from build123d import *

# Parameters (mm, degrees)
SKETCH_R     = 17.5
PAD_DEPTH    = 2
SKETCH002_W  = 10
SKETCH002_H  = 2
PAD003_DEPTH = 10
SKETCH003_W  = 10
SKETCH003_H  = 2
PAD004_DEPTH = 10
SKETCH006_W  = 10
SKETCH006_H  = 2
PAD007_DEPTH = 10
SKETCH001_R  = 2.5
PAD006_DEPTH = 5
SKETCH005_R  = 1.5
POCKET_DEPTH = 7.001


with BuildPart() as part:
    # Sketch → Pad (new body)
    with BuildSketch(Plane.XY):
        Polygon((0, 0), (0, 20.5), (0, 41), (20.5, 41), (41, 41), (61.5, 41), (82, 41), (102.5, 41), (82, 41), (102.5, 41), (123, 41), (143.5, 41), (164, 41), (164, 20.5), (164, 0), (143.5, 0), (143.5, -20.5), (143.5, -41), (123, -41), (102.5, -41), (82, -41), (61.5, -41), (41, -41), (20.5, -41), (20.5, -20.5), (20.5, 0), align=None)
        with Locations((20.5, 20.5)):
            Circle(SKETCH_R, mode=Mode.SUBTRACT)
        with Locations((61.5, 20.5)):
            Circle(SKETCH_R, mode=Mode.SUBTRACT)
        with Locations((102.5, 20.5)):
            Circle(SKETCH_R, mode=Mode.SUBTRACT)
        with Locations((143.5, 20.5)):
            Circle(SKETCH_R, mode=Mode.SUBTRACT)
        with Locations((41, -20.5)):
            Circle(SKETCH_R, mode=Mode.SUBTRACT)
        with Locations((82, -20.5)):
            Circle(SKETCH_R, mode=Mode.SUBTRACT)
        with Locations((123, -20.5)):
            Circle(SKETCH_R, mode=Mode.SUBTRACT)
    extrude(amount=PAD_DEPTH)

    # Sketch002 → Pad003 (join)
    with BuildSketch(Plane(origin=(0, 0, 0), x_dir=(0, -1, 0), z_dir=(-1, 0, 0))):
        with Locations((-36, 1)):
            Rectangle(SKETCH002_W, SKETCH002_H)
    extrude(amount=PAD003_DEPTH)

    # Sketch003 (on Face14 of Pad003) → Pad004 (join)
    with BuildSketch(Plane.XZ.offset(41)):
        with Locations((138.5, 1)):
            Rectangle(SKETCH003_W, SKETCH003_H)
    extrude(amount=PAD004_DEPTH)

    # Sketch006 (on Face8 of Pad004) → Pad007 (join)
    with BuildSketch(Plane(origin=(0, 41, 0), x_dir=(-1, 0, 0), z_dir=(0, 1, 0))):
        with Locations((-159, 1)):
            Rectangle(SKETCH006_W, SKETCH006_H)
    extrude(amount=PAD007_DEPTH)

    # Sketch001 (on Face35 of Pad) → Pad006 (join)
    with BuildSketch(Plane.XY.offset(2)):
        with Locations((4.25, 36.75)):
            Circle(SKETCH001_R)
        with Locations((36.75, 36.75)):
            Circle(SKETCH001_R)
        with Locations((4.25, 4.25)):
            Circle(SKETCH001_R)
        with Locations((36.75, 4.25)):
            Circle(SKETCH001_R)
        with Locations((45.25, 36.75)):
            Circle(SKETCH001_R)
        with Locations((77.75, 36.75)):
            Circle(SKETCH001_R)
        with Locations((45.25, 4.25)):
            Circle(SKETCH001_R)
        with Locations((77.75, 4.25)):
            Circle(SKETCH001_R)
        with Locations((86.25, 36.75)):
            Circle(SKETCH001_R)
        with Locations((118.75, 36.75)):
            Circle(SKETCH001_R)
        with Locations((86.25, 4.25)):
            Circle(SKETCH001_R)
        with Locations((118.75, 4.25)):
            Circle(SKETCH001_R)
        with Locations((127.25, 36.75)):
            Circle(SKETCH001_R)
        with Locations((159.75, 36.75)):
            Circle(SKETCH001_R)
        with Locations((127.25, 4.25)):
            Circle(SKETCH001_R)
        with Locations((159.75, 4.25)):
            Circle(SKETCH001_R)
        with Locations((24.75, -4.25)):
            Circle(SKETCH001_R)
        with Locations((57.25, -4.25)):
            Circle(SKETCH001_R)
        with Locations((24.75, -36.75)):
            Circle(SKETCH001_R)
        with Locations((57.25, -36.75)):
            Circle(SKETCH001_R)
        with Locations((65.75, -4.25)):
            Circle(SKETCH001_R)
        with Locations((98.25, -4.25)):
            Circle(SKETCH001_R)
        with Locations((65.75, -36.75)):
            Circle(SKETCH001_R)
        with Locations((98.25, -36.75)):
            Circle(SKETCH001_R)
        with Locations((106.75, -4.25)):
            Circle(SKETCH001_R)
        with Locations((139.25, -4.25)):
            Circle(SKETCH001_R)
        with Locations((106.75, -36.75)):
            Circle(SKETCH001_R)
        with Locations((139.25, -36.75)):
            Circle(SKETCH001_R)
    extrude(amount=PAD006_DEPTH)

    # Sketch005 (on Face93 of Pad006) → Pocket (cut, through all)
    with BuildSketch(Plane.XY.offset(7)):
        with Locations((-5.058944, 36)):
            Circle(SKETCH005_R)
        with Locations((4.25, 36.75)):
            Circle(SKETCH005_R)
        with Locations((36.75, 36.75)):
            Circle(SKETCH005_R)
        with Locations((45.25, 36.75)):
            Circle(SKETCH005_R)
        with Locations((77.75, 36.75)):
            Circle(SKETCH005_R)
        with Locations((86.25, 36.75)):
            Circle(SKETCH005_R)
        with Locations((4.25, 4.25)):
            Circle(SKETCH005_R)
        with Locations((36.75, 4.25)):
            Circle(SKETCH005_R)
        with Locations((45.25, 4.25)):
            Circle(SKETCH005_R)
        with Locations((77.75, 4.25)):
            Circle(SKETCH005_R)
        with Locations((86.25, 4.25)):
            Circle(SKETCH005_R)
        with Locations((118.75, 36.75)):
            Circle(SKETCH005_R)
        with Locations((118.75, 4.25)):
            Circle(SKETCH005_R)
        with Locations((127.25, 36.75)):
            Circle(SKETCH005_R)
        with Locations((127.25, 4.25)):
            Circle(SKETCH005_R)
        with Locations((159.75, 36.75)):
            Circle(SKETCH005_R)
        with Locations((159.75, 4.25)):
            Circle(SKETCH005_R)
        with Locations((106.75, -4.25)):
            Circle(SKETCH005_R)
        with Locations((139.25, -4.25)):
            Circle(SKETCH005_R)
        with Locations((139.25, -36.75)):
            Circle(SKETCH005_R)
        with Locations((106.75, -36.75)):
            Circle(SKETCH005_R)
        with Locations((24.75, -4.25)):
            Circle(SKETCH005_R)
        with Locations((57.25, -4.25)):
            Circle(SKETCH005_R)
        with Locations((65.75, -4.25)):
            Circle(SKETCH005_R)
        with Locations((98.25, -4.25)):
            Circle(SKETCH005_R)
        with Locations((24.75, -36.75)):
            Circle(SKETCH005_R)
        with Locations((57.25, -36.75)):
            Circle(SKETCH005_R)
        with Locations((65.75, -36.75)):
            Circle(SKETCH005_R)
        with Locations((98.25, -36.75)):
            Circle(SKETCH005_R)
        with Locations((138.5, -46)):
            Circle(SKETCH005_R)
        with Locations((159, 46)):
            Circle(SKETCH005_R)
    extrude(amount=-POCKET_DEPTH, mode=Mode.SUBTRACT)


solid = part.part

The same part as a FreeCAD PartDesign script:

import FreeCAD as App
import Part
import Sketcher
from FreeCAD import Vector
Q = App.Units.Quantity


def add_polygon(sketch, points):
    """Adds a closed chain of lines whose ends are joined by coincident constraints."""
    first, n = sketch.GeometryCount, len(points)
    for a, b in zip(points, points[1:] + points[:1]):
        sketch.addGeometry(Part.LineSegment(App.Vector(*a, 0), App.Vector(*b, 0)), False)
    for i in range(n):
        sketch.addConstraint(Sketcher.Constraint("Coincident", first + i, 2, first + (i + 1) % n, 1))

doc = App.newDocument("Part")
body = doc.addObject("PartDesign::Body", "Body")

# Sketch on XY plane
sketch1 = doc.addObject("Sketcher::SketchObject", "Sketch")
body.addObject(sketch1)
sketch1.AttachmentSupport = (doc.XY_Plane, [""])
sketch1.MapMode = "FlatFace"
add_polygon(sketch1, [(0, 41), (0, 0), (20.5, 0), (20.5, -41), (143.5, -41), (143.5, 0), (164, 0), (164, 41)])  # lines 0-7
sketch1.addGeometry(Part.Circle(Vector(123, -20.5, 0), Vector(0, 0, 1), 17.5), False)  # 8
sketch1.addGeometry(Part.Circle(Vector(82, -20.5, 0), Vector(0, 0, 1), 17.5), False)  # 9
sketch1.addGeometry(Part.Circle(Vector(41, -20.5, 0), Vector(0, 0, 1), 17.5), False)  # 10
sketch1.addGeometry(Part.Circle(Vector(143.5, 20.5, 0), Vector(0, 0, 1), 17.5), False)  # 11
sketch1.addGeometry(Part.Circle(Vector(102.5, 20.5, 0), Vector(0, 0, 1), 17.5), False)  # 12
sketch1.addGeometry(Part.Circle(Vector(61.5, 20.5, 0), Vector(0, 0, 1), 17.5), False)  # 13
sketch1.addGeometry(Part.Circle(Vector(20.5, 20.5, 0), Vector(0, 0, 1), 17.5), False)  # 14
sketch1.addConstraint(Sketcher.Constraint("Vertical", 0))
sketch1.addConstraint(Sketcher.Constraint("Horizontal", 1))
sketch1.addConstraint(Sketcher.Constraint("Vertical", 2))
sketch1.addConstraint(Sketcher.Constraint("Horizontal", 3))
sketch1.addConstraint(Sketcher.Constraint("Vertical", 4))
sketch1.addConstraint(Sketcher.Constraint("Horizontal", 5))
sketch1.addConstraint(Sketcher.Constraint("Vertical", 6))
sketch1.addConstraint(Sketcher.Constraint("Horizontal", 7))
sketch1.addConstraint(Sketcher.Constraint("Coincident", 0, 2, -1, 1))
sketch1.addConstraint(Sketcher.Constraint("Equal", 8, 9))
sketch1.addConstraint(Sketcher.Constraint("Equal", 9, 10))
sketch1.addConstraint(Sketcher.Constraint("Equal", 10, 11))
sketch1.addConstraint(Sketcher.Constraint("Equal", 11, 12))
sketch1.addConstraint(Sketcher.Constraint("Equal", 12, 13))
sketch1.addConstraint(Sketcher.Constraint("Equal", 13, 14))
sketch1.addConstraint(Sketcher.Constraint("PointOnObject", 4, 2, -1))
sketch1.addConstraint(Sketcher.Constraint("Horizontal", 8, 3, 9, 3))
sketch1.addConstraint(Sketcher.Constraint("Horizontal", 9, 3, 10, 3))
sketch1.addConstraint(Sketcher.Constraint("Horizontal", 11, 3, 12, 3))
sketch1.addConstraint(Sketcher.Constraint("Horizontal", 12, 3, 13, 3))
sketch1.addConstraint(Sketcher.Constraint("Horizontal", 13, 3, 14, 3))
sketch1.addConstraint(Sketcher.Constraint("Vertical", 14, 3, 1, 2))
sketch1.addConstraint(Sketcher.Constraint("Vertical", 11, 3, 3, 2))
sketch1.addConstraint(Sketcher.Constraint("Equal", 1, 5))
sketch1.addConstraint(Sketcher.Constraint("Equal", 0, 2))
sketch1.addConstraint(Sketcher.Constraint("Diameter", 8, Q("35 mm")))
sketch1.addConstraint(Sketcher.Constraint("DistanceX", 3, 1, 3, 2, Q("123 mm")))
sketch1.addConstraint(Sketcher.Constraint("DistanceX", 7, 2, 7, 1, Q("164 mm")))
sketch1.addConstraint(Sketcher.Constraint("DistanceY", 0, 2, 0, 1, Q("41 mm")))
sketch1.addConstraint(Sketcher.Constraint("DistanceX", -1, 1, 8, 3, Q("123 mm")))
sketch1.addConstraint(Sketcher.Constraint("DistanceX", -1, 1, 9, 3, Q("82 mm")))
sketch1.addConstraint(Sketcher.Constraint("DistanceX", -1, 1, 10, 3, Q("41 mm")))
sketch1.addConstraint(Sketcher.Constraint("DistanceY", 8, 3, 11, 3, Q("41 mm")))
sketch1.addConstraint(Sketcher.Constraint("DistanceX", 12, 3, 11, 3, Q("41 mm")))
sketch1.addConstraint(Sketcher.Constraint("DistanceX", 13, 3, 12, 3, Q("41 mm")))
sketch1.addConstraint(Sketcher.Constraint("DistanceY", 8, 3, -1, 1, Q("20.5 mm")))
pad1 = doc.addObject("PartDesign::Pad", "Pad")
body.addObject(pad1)
pad1.Profile = sketch1
pad1.Length = 2

# Sketch on YZ plane
sketch2 = doc.addObject("Sketcher::SketchObject", "Sketch001")
body.addObject(sketch2)
sketch2.AttachmentSupport = (doc.YZ_Plane, [""])
sketch2.MapMode = "FlatFace"
add_polygon(sketch2, [(41, 2), (41, 0), (31, 0), (31, 2)])  # lines 0-3
sketch2.addConstraint(Sketcher.Constraint("Vertical", 0))
sketch2.addConstraint(Sketcher.Constraint("Horizontal", 1))
sketch2.addConstraint(Sketcher.Constraint("Vertical", 2))
sketch2.addConstraint(Sketcher.Constraint("Horizontal", 3))
sketch2.addConstraint(Sketcher.Constraint("PointOnObject", 0, 2, -1))
sketch2.addConstraint(Sketcher.Constraint("DistanceX", 1, 2, 1, 1, Q("10 mm")))
sketch2.addConstraint(Sketcher.Constraint("DistanceY", 0, 2, 0, 1, Q("2 mm")))
sketch2.addConstraint(Sketcher.Constraint("DistanceX", -1, 1, 0, 2, Q("41 mm")))
pad2 = doc.addObject("PartDesign::Pad", "Pad001")
body.addObject(pad2)
pad2.Profile = sketch2
pad2.Length = 10
pad2.Reversed = True

# Sketch on XZ plane
sketch3 = doc.addObject("Sketcher::SketchObject", "Sketch002")
body.addObject(sketch3)
sketch3.AttachmentSupport = (doc.XZ_Plane, [""])
sketch3.MapMode = "FlatFace"
sketch3.AttachmentOffset = App.Placement(Vector(0, 0, 41), App.Rotation())
add_polygon(sketch3, [(133.5, 2), (133.5, 0), (143.5, 0), (143.5, 2)])  # lines 0-3
sketch3.addConstraint(Sketcher.Constraint("Vertical", 0))
sketch3.addConstraint(Sketcher.Constraint("Horizontal", 1))
sketch3.addConstraint(Sketcher.Constraint("Vertical", 2))
sketch3.addConstraint(Sketcher.Constraint("Horizontal", 3))
sketch3.addConstraint(Sketcher.Constraint("PointOnObject", 0, 2, -1))
sketch3.addConstraint(Sketcher.Constraint("DistanceX", 1, 1, 1, 2, Q("10 mm")))
sketch3.addConstraint(Sketcher.Constraint("DistanceY", 0, 2, 0, 1, Q("2 mm")))
sketch3.addConstraint(Sketcher.Constraint("DistanceX", -1, 1, 0, 2, Q("133.5 mm")))
pad3 = doc.addObject("PartDesign::Pad", "Pad002")
body.addObject(pad3)
pad3.Profile = sketch3
pad3.Length = 10

# Sketch on XZ plane
sketch4 = doc.addObject("Sketcher::SketchObject", "Sketch003")
body.addObject(sketch4)
sketch4.AttachmentSupport = (doc.XZ_Plane, [""])
sketch4.MapMode = "FlatFace"
sketch4.AttachmentOffset = App.Placement(Vector(0, 0, -41), App.Rotation())
add_polygon(sketch4, [(164, 2), (164, 0), (154, 0), (154, 2)])  # lines 0-3
sketch4.addConstraint(Sketcher.Constraint("Vertical", 0))
sketch4.addConstraint(Sketcher.Constraint("Horizontal", 1))
sketch4.addConstraint(Sketcher.Constraint("Vertical", 2))
sketch4.addConstraint(Sketcher.Constraint("Horizontal", 3))
sketch4.addConstraint(Sketcher.Constraint("PointOnObject", 0, 2, -1))
sketch4.addConstraint(Sketcher.Constraint("DistanceX", 1, 2, 1, 1, Q("10 mm")))
sketch4.addConstraint(Sketcher.Constraint("DistanceY", 0, 2, 0, 1, Q("2 mm")))
sketch4.addConstraint(Sketcher.Constraint("DistanceX", -1, 1, 0, 2, Q("164 mm")))
pad4 = doc.addObject("PartDesign::Pad", "Pad003")
body.addObject(pad4)
pad4.Profile = sketch4
pad4.Length = 10
pad4.Reversed = True

# Sketch on XY plane
sketch5 = doc.addObject("Sketcher::SketchObject", "Sketch004")
body.addObject(sketch5)
sketch5.AttachmentSupport = (doc.XY_Plane, [""])
sketch5.MapMode = "FlatFace"
sketch5.AttachmentOffset = App.Placement(Vector(0, 0, 2), App.Rotation())
sketch5.addGeometry(Part.Circle(Vector(4.25, 36.75, 0), Vector(0, 0, 1), 2.5), False)
sketch5.addGeometry(Part.Circle(Vector(36.75, 36.75, 0), Vector(0, 0, 1), 2.5), False)
sketch5.addGeometry(Part.Circle(Vector(4.25, 4.25, 0), Vector(0, 0, 1), 2.5), False)
sketch5.addGeometry(Part.Circle(Vector(36.75, 4.25, 0), Vector(0, 0, 1), 2.5), False)
sketch5.addGeometry(Part.Circle(Vector(45.25, 36.75, 0), Vector(0, 0, 1), 2.5), False)
sketch5.addGeometry(Part.Circle(Vector(77.75, 36.75, 0), Vector(0, 0, 1), 2.5), False)
sketch5.addGeometry(Part.Circle(Vector(45.25, 4.25, 0), Vector(0, 0, 1), 2.5), False)
sketch5.addGeometry(Part.Circle(Vector(77.75, 4.25, 0), Vector(0, 0, 1), 2.5), False)
sketch5.addGeometry(Part.Circle(Vector(86.25, 36.75, 0), Vector(0, 0, 1), 2.5), False)
sketch5.addGeometry(Part.Circle(Vector(118.75, 36.75, 0), Vector(0, 0, 1), 2.5), False)
sketch5.addGeometry(Part.Circle(Vector(86.25, 4.25, 0), Vector(0, 0, 1), 2.5), False)
sketch5.addGeometry(Part.Circle(Vector(118.75, 4.25, 0), Vector(0, 0, 1), 2.5), False)
sketch5.addGeometry(Part.Circle(Vector(127.25, 36.75, 0), Vector(0, 0, 1), 2.5), False)
sketch5.addGeometry(Part.Circle(Vector(159.75, 36.75, 0), Vector(0, 0, 1), 2.5), False)
sketch5.addGeometry(Part.Circle(Vector(127.25, 4.25, 0), Vector(0, 0, 1), 2.5), False)
sketch5.addGeometry(Part.Circle(Vector(159.75, 4.25, 0), Vector(0, 0, 1), 2.5), False)
sketch5.addGeometry(Part.Circle(Vector(24.75, -4.25, 0), Vector(0, 0, 1), 2.5), False)
sketch5.addGeometry(Part.Circle(Vector(57.25, -4.25, 0), Vector(0, 0, 1), 2.5), False)
sketch5.addGeometry(Part.Circle(Vector(24.75, -36.75, 0), Vector(0, 0, 1), 2.5), False)
sketch5.addGeometry(Part.Circle(Vector(57.25, -36.75, 0), Vector(0, 0, 1), 2.5), False)
sketch5.addGeometry(Part.Circle(Vector(65.75, -4.25, 0), Vector(0, 0, 1), 2.5), False)
sketch5.addGeometry(Part.Circle(Vector(98.25, -4.25, 0), Vector(0, 0, 1), 2.5), False)
sketch5.addGeometry(Part.Circle(Vector(65.75, -36.75, 0), Vector(0, 0, 1), 2.5), False)
sketch5.addGeometry(Part.Circle(Vector(98.25, -36.75, 0), Vector(0, 0, 1), 2.5), False)
sketch5.addGeometry(Part.Circle(Vector(106.75, -4.25, 0), Vector(0, 0, 1), 2.5), False)
sketch5.addGeometry(Part.Circle(Vector(139.25, -4.25, 0), Vector(0, 0, 1), 2.5), False)
sketch5.addGeometry(Part.Circle(Vector(106.75, -36.75, 0), Vector(0, 0, 1), 2.5), False)
sketch5.addGeometry(Part.Circle(Vector(139.25, -36.75, 0), Vector(0, 0, 1), 2.5), False)
sketch5.addConstraint(Sketcher.Constraint("Equal", 0, 1))
sketch5.addConstraint(Sketcher.Constraint("Equal", 1, 2))
sketch5.addConstraint(Sketcher.Constraint("Equal", 2, 3))
sketch5.addConstraint(Sketcher.Constraint("Equal", 3, 4))
sketch5.addConstraint(Sketcher.Constraint("Equal", 4, 5))
sketch5.addConstraint(Sketcher.Constraint("Equal", 5, 6))
sketch5.addConstraint(Sketcher.Constraint("Equal", 6, 7))
sketch5.addConstraint(Sketcher.Constraint("Equal", 7, 8))
sketch5.addConstraint(Sketcher.Constraint("Equal", 8, 9))
sketch5.addConstraint(Sketcher.Constraint("Equal", 9, 10))
sketch5.addConstraint(Sketcher.Constraint("Equal", 10, 11))
sketch5.addConstraint(Sketcher.Constraint("Equal", 11, 12))
sketch5.addConstraint(Sketcher.Constraint("Equal", 12, 13))
sketch5.addConstraint(Sketcher.Constraint("Equal", 13, 14))
sketch5.addConstraint(Sketcher.Constraint("Equal", 14, 15))
sketch5.addConstraint(Sketcher.Constraint("Equal", 15, 16))
sketch5.addConstraint(Sketcher.Constraint("Equal", 16, 17))
sketch5.addConstraint(Sketcher.Constraint("Equal", 17, 18))
sketch5.addConstraint(Sketcher.Constraint("Equal", 18, 19))
sketch5.addConstraint(Sketcher.Constraint("Equal", 19, 20))
sketch5.addConstraint(Sketcher.Constraint("Equal", 20, 21))
sketch5.addConstraint(Sketcher.Constraint("Equal", 21, 22))
sketch5.addConstraint(Sketcher.Constraint("Equal", 22, 23))
sketch5.addConstraint(Sketcher.Constraint("Equal", 23, 24))
sketch5.addConstraint(Sketcher.Constraint("Equal", 24, 25))
sketch5.addConstraint(Sketcher.Constraint("Equal", 25, 26))
sketch5.addConstraint(Sketcher.Constraint("Equal", 26, 27))
sketch5.addConstraint(Sketcher.Constraint("Horizontal", 0, 3, 1, 3))
sketch5.addConstraint(Sketcher.Constraint("Horizontal", 2, 3, 3, 3))
sketch5.addConstraint(Sketcher.Constraint("Horizontal", 1, 3, 4, 3))
sketch5.addConstraint(Sketcher.Constraint("Horizontal", 4, 3, 5, 3))
sketch5.addConstraint(Sketcher.Constraint("Horizontal", 3, 3, 6, 3))
sketch5.addConstraint(Sketcher.Constraint("Horizontal", 6, 3, 7, 3))
sketch5.addConstraint(Sketcher.Constraint("Horizontal", 5, 3, 8, 3))
sketch5.addConstraint(Sketcher.Constraint("Horizontal", 8, 3, 9, 3))
sketch5.addConstraint(Sketcher.Constraint("Horizontal", 7, 3, 10, 3))
sketch5.addConstraint(Sketcher.Constraint("Horizontal", 10, 3, 11, 3))
sketch5.addConstraint(Sketcher.Constraint("Horizontal", 9, 3, 12, 3))
sketch5.addConstraint(Sketcher.Constraint("Horizontal", 12, 3, 13, 3))
sketch5.addConstraint(Sketcher.Constraint("Horizontal", 11, 3, 14, 3))
sketch5.addConstraint(Sketcher.Constraint("Horizontal", 14, 3, 15, 3))
sketch5.addConstraint(Sketcher.Constraint("Horizontal", 16, 3, 17, 3))
sketch5.addConstraint(Sketcher.Constraint("Horizontal", 18, 3, 19, 3))
sketch5.addConstraint(Sketcher.Constraint("Horizontal", 17, 3, 20, 3))
sketch5.addConstraint(Sketcher.Constraint("Horizontal", 20, 3, 21, 3))
sketch5.addConstraint(Sketcher.Constraint("Horizontal", 19, 3, 22, 3))
sketch5.addConstraint(Sketcher.Constraint("Horizontal", 22, 3, 23, 3))
sketch5.addConstraint(Sketcher.Constraint("Horizontal", 21, 3, 24, 3))
sketch5.addConstraint(Sketcher.Constraint("Horizontal", 24, 3, 25, 3))
sketch5.addConstraint(Sketcher.Constraint("Horizontal", 23, 3, 26, 3))
sketch5.addConstraint(Sketcher.Constraint("Horizontal", 26, 3, 27, 3))
sketch5.addConstraint(Sketcher.Constraint("Vertical", 0, 3, 2, 3))
sketch5.addConstraint(Sketcher.Constraint("Vertical", 1, 3, 3, 3))
sketch5.addConstraint(Sketcher.Constraint("Vertical", 4, 3, 6, 3))
sketch5.addConstraint(Sketcher.Constraint("Vertical", 5, 3, 7, 3))
sketch5.addConstraint(Sketcher.Constraint("Vertical", 8, 3, 10, 3))
sketch5.addConstraint(Sketcher.Constraint("Vertical", 9, 3, 11, 3))
sketch5.addConstraint(Sketcher.Constraint("Vertical", 12, 3, 14, 3))
sketch5.addConstraint(Sketcher.Constraint("Vertical", 13, 3, 15, 3))
sketch5.addConstraint(Sketcher.Constraint("Vertical", 16, 3, 18, 3))
sketch5.addConstraint(Sketcher.Constraint("Vertical", 17, 3, 19, 3))
sketch5.addConstraint(Sketcher.Constraint("Vertical", 20, 3, 22, 3))
sketch5.addConstraint(Sketcher.Constraint("Vertical", 21, 3, 23, 3))
sketch5.addConstraint(Sketcher.Constraint("Vertical", 24, 3, 26, 3))
sketch5.addConstraint(Sketcher.Constraint("Vertical", 25, 3, 27, 3))
sketch5.addConstraint(Sketcher.Constraint("Diameter", 0, Q("5 mm")))
sketch5.addConstraint(Sketcher.Constraint("DistanceX", 0, 3, 4, 3, Q("41 mm")))
sketch5.addConstraint(Sketcher.Constraint("DistanceX", 1, 3, 5, 3, Q("41 mm")))
sketch5.addConstraint(Sketcher.Constraint("DistanceX", 4, 3, 8, 3, Q("41 mm")))
sketch5.addConstraint(Sketcher.Constraint("DistanceX", 5, 3, 9, 3, Q("41 mm")))
sketch5.addConstraint(Sketcher.Constraint("DistanceX", 8, 3, 12, 3, Q("41 mm")))
sketch5.addConstraint(Sketcher.Constraint("DistanceX", 9, 3, 13, 3, Q("41 mm")))
sketch5.addConstraint(Sketcher.Constraint("DistanceX", 16, 3, 3, 3, Q("12 mm")))
sketch5.addConstraint(Sketcher.Constraint("DistanceY", 16, 3, 1, 3, Q("41 mm")))
sketch5.addConstraint(Sketcher.Constraint("DistanceX", 6, 3, 17, 3, Q("12 mm")))
sketch5.addConstraint(Sketcher.Constraint("DistanceY", 18, 3, 3, 3, Q("41 mm")))
sketch5.addConstraint(Sketcher.Constraint("DistanceX", 20, 3, 7, 3, Q("12 mm")))
sketch5.addConstraint(Sketcher.Constraint("DistanceX", 10, 3, 21, 3, Q("12 mm")))
sketch5.addConstraint(Sketcher.Constraint("DistanceX", 24, 3, 11, 3, Q("12 mm")))
sketch5.addConstraint(Sketcher.Constraint("DistanceX", 14, 3, 25, 3, Q("12 mm")))
sketch5.addConstraint(Sketcher.Constraint("DistanceX", 0, 3, 1, 3, Q("32.5 mm")))
sketch5.addConstraint(Sketcher.Constraint("DistanceY", 2, 3, 0, 3, Q("32.5 mm")))
sketch5.addConstraint(Sketcher.Constraint("DistanceX", -1, 1, 0, 3, Q("4.25 mm")))
sketch5.addConstraint(Sketcher.Constraint("DistanceY", -1, 1, 0, 3, Q("36.75 mm")))
pad5 = doc.addObject("PartDesign::Pad", "Pad004")
body.addObject(pad5)
pad5.Profile = sketch5
pad5.Length = 5

# Sketch on XY plane
sketch6 = doc.addObject("Sketcher::SketchObject", "Sketch005")
body.addObject(sketch6)
sketch6.AttachmentSupport = (doc.XY_Plane, [""])
sketch6.MapMode = "FlatFace"
sketch6.AttachmentOffset = App.Placement(Vector(0, 0, 7), App.Rotation())
sketch6.addGeometry(Part.Circle(Vector(-5.058944, 36, 0), Vector(0, 0, 1), 1.5), False)
sketch6.addGeometry(Part.Circle(Vector(4.25, 36.75, 0), Vector(0, 0, 1), 1.5), False)
sketch6.addGeometry(Part.Circle(Vector(36.75, 36.75, 0), Vector(0, 0, 1), 1.5), False)
sketch6.addGeometry(Part.Circle(Vector(45.25, 36.75, 0), Vector(0, 0, 1), 1.5), False)
sketch6.addGeometry(Part.Circle(Vector(77.75, 36.75, 0), Vector(0, 0, 1), 1.5), False)
sketch6.addGeometry(Part.Circle(Vector(86.25, 36.75, 0), Vector(0, 0, 1), 1.5), False)
sketch6.addGeometry(Part.Circle(Vector(4.25, 4.25, 0), Vector(0, 0, 1), 1.5), False)
sketch6.addGeometry(Part.Circle(Vector(36.75, 4.25, 0), Vector(0, 0, 1), 1.5), False)
sketch6.addGeometry(Part.Circle(Vector(45.25, 4.25, 0), Vector(0, 0, 1), 1.5), False)
sketch6.addGeometry(Part.Circle(Vector(77.75, 4.25, 0), Vector(0, 0, 1), 1.5), False)
sketch6.addGeometry(Part.Circle(Vector(86.25, 4.25, 0), Vector(0, 0, 1), 1.5), False)
sketch6.addGeometry(Part.Circle(Vector(118.75, 36.75, 0), Vector(0, 0, 1), 1.5), False)
sketch6.addGeometry(Part.Circle(Vector(118.75, 4.25, 0), Vector(0, 0, 1), 1.5), False)
sketch6.addGeometry(Part.Circle(Vector(127.25, 36.75, 0), Vector(0, 0, 1), 1.5), False)
sketch6.addGeometry(Part.Circle(Vector(127.25, 4.25, 0), Vector(0, 0, 1), 1.5), False)
sketch6.addGeometry(Part.Circle(Vector(159.75, 36.75, 0), Vector(0, 0, 1), 1.5), False)
sketch6.addGeometry(Part.Circle(Vector(159.75, 4.25, 0), Vector(0, 0, 1), 1.5), False)
sketch6.addGeometry(Part.Circle(Vector(106.75, -4.25, 0), Vector(0, 0, 1), 1.5), False)
sketch6.addGeometry(Part.Circle(Vector(139.25, -4.25, 0), Vector(0, 0, 1), 1.5), False)
sketch6.addGeometry(Part.Circle(Vector(139.25, -36.75, 0), Vector(0, 0, 1), 1.5), False)
sketch6.addGeometry(Part.Circle(Vector(106.75, -36.75, 0), Vector(0, 0, 1), 1.5), False)
sketch6.addGeometry(Part.Circle(Vector(24.75, -4.25, 0), Vector(0, 0, 1), 1.5), False)
sketch6.addGeometry(Part.Circle(Vector(57.25, -4.25, 0), Vector(0, 0, 1), 1.5), False)
sketch6.addGeometry(Part.Circle(Vector(65.75, -4.25, 0), Vector(0, 0, 1), 1.5), False)
sketch6.addGeometry(Part.Circle(Vector(98.25, -4.25, 0), Vector(0, 0, 1), 1.5), False)
sketch6.addGeometry(Part.Circle(Vector(24.75, -36.75, 0), Vector(0, 0, 1), 1.5), False)
sketch6.addGeometry(Part.Circle(Vector(57.25, -36.75, 0), Vector(0, 0, 1), 1.5), False)
sketch6.addGeometry(Part.Circle(Vector(65.75, -36.75, 0), Vector(0, 0, 1), 1.5), False)
sketch6.addGeometry(Part.Circle(Vector(98.25, -36.75, 0), Vector(0, 0, 1), 1.5), False)
sketch6.addGeometry(Part.Circle(Vector(138.5, -46, 0), Vector(0, 0, 1), 1.5), False)
sketch6.addGeometry(Part.Circle(Vector(159, 46, 0), Vector(0, 0, 1), 1.5), False)
sketch6.addConstraint(Sketcher.Constraint("Equal", 0, 1))
sketch6.addConstraint(Sketcher.Constraint("Equal", 1, 2))
sketch6.addConstraint(Sketcher.Constraint("Equal", 2, 3))
sketch6.addConstraint(Sketcher.Constraint("Equal", 3, 4))
sketch6.addConstraint(Sketcher.Constraint("Equal", 4, 5))
sketch6.addConstraint(Sketcher.Constraint("Equal", 5, 6))
sketch6.addConstraint(Sketcher.Constraint("Equal", 6, 7))
sketch6.addConstraint(Sketcher.Constraint("Equal", 7, 8))
sketch6.addConstraint(Sketcher.Constraint("Equal", 8, 9))
sketch6.addConstraint(Sketcher.Constraint("Equal", 9, 10))
sketch6.addConstraint(Sketcher.Constraint("Equal", 10, 11))
sketch6.addConstraint(Sketcher.Constraint("Equal", 11, 12))
sketch6.addConstraint(Sketcher.Constraint("Equal", 12, 13))
sketch6.addConstraint(Sketcher.Constraint("Equal", 13, 14))
sketch6.addConstraint(Sketcher.Constraint("Equal", 14, 15))
sketch6.addConstraint(Sketcher.Constraint("Equal", 15, 16))
sketch6.addConstraint(Sketcher.Constraint("Equal", 16, 17))
sketch6.addConstraint(Sketcher.Constraint("Equal", 17, 18))
sketch6.addConstraint(Sketcher.Constraint("Equal", 18, 19))
sketch6.addConstraint(Sketcher.Constraint("Equal", 19, 20))
sketch6.addConstraint(Sketcher.Constraint("Equal", 20, 21))
sketch6.addConstraint(Sketcher.Constraint("Equal", 21, 22))
sketch6.addConstraint(Sketcher.Constraint("Equal", 22, 23))
sketch6.addConstraint(Sketcher.Constraint("Equal", 23, 24))
sketch6.addConstraint(Sketcher.Constraint("Equal", 24, 25))
sketch6.addConstraint(Sketcher.Constraint("Equal", 25, 26))
sketch6.addConstraint(Sketcher.Constraint("Equal", 26, 27))
sketch6.addConstraint(Sketcher.Constraint("Equal", 27, 28))
sketch6.addConstraint(Sketcher.Constraint("Equal", 28, 29))
sketch6.addConstraint(Sketcher.Constraint("Equal", 29, 30))
sketch6.addConstraint(Sketcher.Constraint("Horizontal", 1, 3, 2, 3))
sketch6.addConstraint(Sketcher.Constraint("Horizontal", 2, 3, 3, 3))
sketch6.addConstraint(Sketcher.Constraint("Horizontal", 3, 3, 4, 3))
sketch6.addConstraint(Sketcher.Constraint("Horizontal", 4, 3, 5, 3))
sketch6.addConstraint(Sketcher.Constraint("Horizontal", 6, 3, 7, 3))
sketch6.addConstraint(Sketcher.Constraint("Horizontal", 7, 3, 8, 3))
sketch6.addConstraint(Sketcher.Constraint("Horizontal", 8, 3, 9, 3))
sketch6.addConstraint(Sketcher.Constraint("Horizontal", 9, 3, 10, 3))
sketch6.addConstraint(Sketcher.Constraint("Horizontal", 5, 3, 11, 3))
sketch6.addConstraint(Sketcher.Constraint("Horizontal", 10, 3, 12, 3))
sketch6.addConstraint(Sketcher.Constraint("Horizontal", 11, 3, 13, 3))
sketch6.addConstraint(Sketcher.Constraint("Horizontal", 12, 3, 14, 3))
sketch6.addConstraint(Sketcher.Constraint("Horizontal", 13, 3, 15, 3))
sketch6.addConstraint(Sketcher.Constraint("Horizontal", 14, 3, 16, 3))
sketch6.addConstraint(Sketcher.Constraint("Horizontal", 17, 3, 18, 3))
sketch6.addConstraint(Sketcher.Constraint("Horizontal", 19, 3, 20, 3))
sketch6.addConstraint(Sketcher.Constraint("Horizontal", 18, 3, 21, 3))
sketch6.addConstraint(Sketcher.Constraint("Horizontal", 21, 3, 22, 3))
sketch6.addConstraint(Sketcher.Constraint("Horizontal", 22, 3, 23, 3))
sketch6.addConstraint(Sketcher.Constraint("Horizontal", 23, 3, 24, 3))
sketch6.addConstraint(Sketcher.Constraint("Horizontal", 20, 3, 25, 3))
sketch6.addConstraint(Sketcher.Constraint("Horizontal", 25, 3, 26, 3))
sketch6.addConstraint(Sketcher.Constraint("Horizontal", 26, 3, 27, 3))
sketch6.addConstraint(Sketcher.Constraint("Horizontal", 27, 3, 28, 3))
sketch6.addConstraint(Sketcher.Constraint("Vertical", 1, 3, 6, 3))
sketch6.addConstraint(Sketcher.Constraint("Vertical", 2, 3, 7, 3))
sketch6.addConstraint(Sketcher.Constraint("Vertical", 3, 3, 8, 3))
sketch6.addConstraint(Sketcher.Constraint("Vertical", 4, 3, 9, 3))
sketch6.addConstraint(Sketcher.Constraint("Vertical", 5, 3, 10, 3))
sketch6.addConstraint(Sketcher.Constraint("Vertical", 11, 3, 12, 3))
sketch6.addConstraint(Sketcher.Constraint("Vertical", 13, 3, 14, 3))
sketch6.addConstraint(Sketcher.Constraint("Vertical", 15, 3, 16, 3))
sketch6.addConstraint(Sketcher.Constraint("Vertical", 18, 3, 19, 3))
sketch6.addConstraint(Sketcher.Constraint("Vertical", 17, 3, 20, 3))
sketch6.addConstraint(Sketcher.Constraint("Vertical", 21, 3, 25, 3))
sketch6.addConstraint(Sketcher.Constraint("Vertical", 22, 3, 26, 3))
sketch6.addConstraint(Sketcher.Constraint("Vertical", 23, 3, 27, 3))
sketch6.addConstraint(Sketcher.Constraint("Vertical", 24, 3, 28, 3))
sketch6.addConstraint(Sketcher.Constraint("Diameter", 0, Q("3 mm")))
sketch6.addConstraint(Sketcher.Constraint("DistanceY", -1, 1, 0, 3, Q("36 mm")))
sketch6.addConstraint(Sketcher.Constraint("DistanceY", 29, 3, -1, 1, Q("46 mm")))
sketch6.addConstraint(Sketcher.Constraint("DistanceX", -1, 1, 30, 3, Q("159 mm")))
sketch6.addConstraint(Sketcher.Constraint("DistanceY", -1, 1, 30, 3, Q("46 mm")))
sketch6.addConstraint(Sketcher.Constraint("DistanceX", 1, 3, 3, 3, Q("41 mm")))
sketch6.addConstraint(Sketcher.Constraint("DistanceX", 2, 3, 4, 3, Q("41 mm")))
sketch6.addConstraint(Sketcher.Constraint("DistanceX", 3, 3, 5, 3, Q("41 mm")))
sketch6.addConstraint(Sketcher.Constraint("DistanceX", 4, 3, 11, 3, Q("41 mm")))
sketch6.addConstraint(Sketcher.Constraint("DistanceX", 5, 3, 13, 3, Q("41 mm")))
sketch6.addConstraint(Sketcher.Constraint("DistanceX", 11, 3, 15, 3, Q("41 mm")))
sketch6.addConstraint(Sketcher.Constraint("DistanceX", 17, 3, 12, 3, Q("12 mm")))
sketch6.addConstraint(Sketcher.Constraint("DistanceY", 17, 3, 11, 3, Q("41 mm")))
sketch6.addConstraint(Sketcher.Constraint("DistanceX", 14, 3, 18, 3, Q("12 mm")))
sketch6.addConstraint(Sketcher.Constraint("DistanceY", 19, 3, 14, 3, Q("41 mm")))
sketch6.addConstraint(Sketcher.Constraint("DistanceX", 21, 3, 7, 3, Q("12 mm")))
sketch6.addConstraint(Sketcher.Constraint("DistanceX", 8, 3, 22, 3, Q("12 mm")))
sketch6.addConstraint(Sketcher.Constraint("DistanceX", 23, 3, 9, 3, Q("12 mm")))
sketch6.addConstraint(Sketcher.Constraint("DistanceX", 10, 3, 24, 3, Q("12 mm")))
sketch6.addConstraint(Sketcher.Constraint("DistanceX", -1, 1, 29, 3, Q("138.5 mm")))
sketch6.addConstraint(Sketcher.Constraint("DistanceX", 1, 3, 2, 3, Q("32.5 mm")))
sketch6.addConstraint(Sketcher.Constraint("DistanceY", 6, 3, 1, 3, Q("32.5 mm")))
sketch6.addConstraint(Sketcher.Constraint("DistanceX", -1, 1, 1, 3, Q("4.25 mm")))
sketch6.addConstraint(Sketcher.Constraint("DistanceY", -1, 1, 1, 3, Q("36.75 mm")))
sketch6.addConstraint(Sketcher.Constraint("DistanceX", 0, 3, -1, 1, Q("5.058944 mm")))
pocket1 = doc.addObject("PartDesign::Pocket", "Pocket")
body.addObject(pocket1)
pocket1.Profile = sketch6
pocket1.Type = "ThroughAll"

doc.recompute()
